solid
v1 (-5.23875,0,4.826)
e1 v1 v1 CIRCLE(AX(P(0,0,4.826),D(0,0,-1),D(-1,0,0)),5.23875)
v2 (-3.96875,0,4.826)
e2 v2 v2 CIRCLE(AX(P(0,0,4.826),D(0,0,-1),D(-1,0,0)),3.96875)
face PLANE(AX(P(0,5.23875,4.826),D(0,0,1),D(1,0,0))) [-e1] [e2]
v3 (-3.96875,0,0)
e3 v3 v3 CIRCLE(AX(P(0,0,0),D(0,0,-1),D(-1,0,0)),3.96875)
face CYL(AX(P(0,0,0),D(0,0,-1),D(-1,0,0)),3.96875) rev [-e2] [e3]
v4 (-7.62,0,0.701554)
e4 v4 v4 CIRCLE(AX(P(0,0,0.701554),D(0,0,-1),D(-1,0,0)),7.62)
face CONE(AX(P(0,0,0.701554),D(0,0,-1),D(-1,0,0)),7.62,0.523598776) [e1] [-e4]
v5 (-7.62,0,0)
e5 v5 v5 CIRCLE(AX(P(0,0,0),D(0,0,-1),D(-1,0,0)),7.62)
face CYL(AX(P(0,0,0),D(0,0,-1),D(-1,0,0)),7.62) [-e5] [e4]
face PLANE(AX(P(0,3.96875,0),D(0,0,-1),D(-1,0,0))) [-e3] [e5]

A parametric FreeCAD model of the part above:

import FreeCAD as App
import Part
import Sketcher

V = App.Vector
Q = App.Units.Quantity


def add_polygon(sketch, points):
    """Adds a closed chain of lines whose ends are joined by coincident constraints."""
    first, n = sketch.GeometryCount, len(points)
    for a, b in zip(points, points[1:] + points[:1]):
        sketch.addGeometry(Part.LineSegment(App.Vector(*a, 0), App.Vector(*b, 0)), False)
    for i in range(n):
        sketch.addConstraint(Sketcher.Constraint("Coincident", first + i, 2, first + (i + 1) % n, 1))

doc = App.newDocument("Part")
body = doc.addObject("PartDesign::Body", "Body")

sketch1 = body.newObject("Sketcher::SketchObject", "Sketch")
sketch1.AttachmentSupport = (doc.getObject("YZ_Plane"), [""])
sketch1.MapMode = "FlatFace"
add_polygon(sketch1, [(4, 4.8), (4, 0), (7.6, 0), (7.6, 0.7), (5.2, 4.8)])
sketch1.addConstraint([
    Sketcher.Constraint("Vertical", 0),
    Sketcher.Constraint("Horizontal", 1),
    Sketcher.Constraint("Vertical", 2),
    Sketcher.Constraint("Horizontal", 4),
    Sketcher.Constraint("PointOnObject", 0, 2, -1),
    Sketcher.Constraint("Angle", 3, Q("120 deg")),
    Sketcher.Constraint("DistanceX", 4, 2, 4, 1, Q("0.05 in")),
    Sketcher.Constraint("DistanceY", 0, 2, 0, 1, Q("0.19 in")),
    Sketcher.Constraint("DistanceX", -1, 1, 1, 2, Q("0.3 in")),
    Sketcher.Constraint("Distance", 3, Q("0.1875 in")),
])
revolution = body.newObject("PartDesign::Revolution", "Revolution")
revolution.Profile = sketch1
revolution.ReferenceAxis = (sketch1, ["V_Axis"])
revolution.Angle = 360

doc.recompute()
